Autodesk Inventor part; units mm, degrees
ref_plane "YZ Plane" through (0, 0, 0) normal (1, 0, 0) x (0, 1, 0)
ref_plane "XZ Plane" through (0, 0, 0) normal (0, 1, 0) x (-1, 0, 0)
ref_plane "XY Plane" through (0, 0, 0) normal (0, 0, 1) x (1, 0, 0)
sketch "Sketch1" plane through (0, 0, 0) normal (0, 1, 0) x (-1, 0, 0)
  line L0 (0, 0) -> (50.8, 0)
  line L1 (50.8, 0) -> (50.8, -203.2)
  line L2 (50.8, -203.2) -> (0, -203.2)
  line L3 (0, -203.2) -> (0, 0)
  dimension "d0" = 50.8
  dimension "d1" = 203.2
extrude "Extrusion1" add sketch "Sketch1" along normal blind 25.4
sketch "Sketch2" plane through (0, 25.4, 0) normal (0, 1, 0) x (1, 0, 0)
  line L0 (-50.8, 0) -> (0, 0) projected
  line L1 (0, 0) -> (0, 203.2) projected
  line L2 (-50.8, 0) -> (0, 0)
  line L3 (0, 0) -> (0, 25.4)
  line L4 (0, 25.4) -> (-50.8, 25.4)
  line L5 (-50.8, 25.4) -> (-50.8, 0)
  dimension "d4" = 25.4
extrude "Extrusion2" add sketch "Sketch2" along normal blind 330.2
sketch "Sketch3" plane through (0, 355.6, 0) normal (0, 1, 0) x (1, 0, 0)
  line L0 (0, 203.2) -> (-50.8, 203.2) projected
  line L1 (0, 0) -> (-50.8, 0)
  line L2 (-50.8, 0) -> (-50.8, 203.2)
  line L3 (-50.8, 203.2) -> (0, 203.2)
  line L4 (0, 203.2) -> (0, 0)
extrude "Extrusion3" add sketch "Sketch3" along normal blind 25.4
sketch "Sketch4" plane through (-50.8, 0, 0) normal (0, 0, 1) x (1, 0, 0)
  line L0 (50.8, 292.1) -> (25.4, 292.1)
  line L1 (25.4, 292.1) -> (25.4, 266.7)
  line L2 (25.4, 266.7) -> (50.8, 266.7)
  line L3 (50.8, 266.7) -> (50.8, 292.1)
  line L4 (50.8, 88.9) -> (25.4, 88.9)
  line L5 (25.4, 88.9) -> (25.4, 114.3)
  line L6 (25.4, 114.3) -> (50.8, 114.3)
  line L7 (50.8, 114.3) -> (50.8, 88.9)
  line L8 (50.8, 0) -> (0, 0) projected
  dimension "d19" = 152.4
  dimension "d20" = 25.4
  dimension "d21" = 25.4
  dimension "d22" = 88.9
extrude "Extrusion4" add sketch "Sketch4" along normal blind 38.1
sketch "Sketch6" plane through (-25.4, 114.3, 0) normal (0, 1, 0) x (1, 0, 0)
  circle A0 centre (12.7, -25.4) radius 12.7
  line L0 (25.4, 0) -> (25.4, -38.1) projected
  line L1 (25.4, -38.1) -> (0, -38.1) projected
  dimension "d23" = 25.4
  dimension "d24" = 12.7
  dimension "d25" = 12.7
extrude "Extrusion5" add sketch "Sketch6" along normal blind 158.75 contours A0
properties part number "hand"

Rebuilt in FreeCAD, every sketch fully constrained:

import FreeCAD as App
import Part
import Sketcher
from FreeCAD import Vector
Q = App.Units.Quantity

doc = App.newDocument("Part")
body = doc.addObject("PartDesign::Body", "Body")

sketch1 = body.newObject("Sketcher::SketchObject", "Sketch")
sketch1.AttachmentSupport = (doc.getObject("XZ_Plane"), [""])
sketch1.MapMode = "FlatFace"
sketch1.addGeometry(Part.LineSegment(Vector(-51, 0, 0), Vector(0, 0, 0)), False)
sketch1.addGeometry(Part.LineSegment(Vector(0, 0, 0), Vector(0, -203, 0)), False)
sketch1.addGeometry(Part.LineSegment(Vector(0, -203, 0), Vector(-51, -203, 0)), False)
sketch1.addGeometry(Part.LineSegment(Vector(-51, -203, 0), Vector(-51, 0, 0)), False)
sketch1.addConstraint(Sketcher.Constraint("Coincident", 0, 2, 1, 1))
sketch1.addConstraint(Sketcher.Constraint("Coincident", 1, 2, 2, 1))
sketch1.addConstraint(Sketcher.Constraint("Coincident", 2, 2, 3, 1))
sketch1.addConstraint(Sketcher.Constraint("Coincident", 3, 2, 0, 1))
sketch1.addConstraint(Sketcher.Constraint("Horizontal", 0))
sketch1.addConstraint(Sketcher.Constraint("Vertical", 1))
sketch1.addConstraint(Sketcher.Constraint("Horizontal", 2))
sketch1.addConstraint(Sketcher.Constraint("Vertical", 3))
sketch1.addConstraint(Sketcher.Constraint("Coincident", 0, 2, -1, 1))
sketch1.addConstraint(Sketcher.Constraint("DistanceX", 0, 1, 0, 2, Q("2 in")))
sketch1.addConstraint(Sketcher.Constraint("DistanceY", 1, 2, 1, 1, Q("8 in")))
pad1 = body.newObject("PartDesign::Pad", "Pad")
pad1.Profile = sketch1
pad1.Length = Q("1 in")
pad1.Reversed = True

sketch2 = body.newObject("Sketcher::SketchObject", "Sketch001")
sketch2.AttachmentSupport = (doc.getObject("XZ_Plane"), [""])
sketch2.MapMode = "FlatFace"
sketch2.AttachmentOffset = App.Placement(Vector(0, 0, -1 * 25.4), App.Rotation())
sketch2.addGeometry(Part.LineSegment(Vector(-51, -25, 0), Vector(-51, 0, 0)), False)
sketch2.addGeometry(Part.LineSegment(Vector(-51, 0, 0), Vector(0, 0, 0)), False)
sketch2.addGeometry(Part.LineSegment(Vector(0, 0, 0), Vector(0, -25, 0)), False)
sketch2.addGeometry(Part.LineSegment(Vector(0, -25, 0), Vector(-51, -25, 0)), False)
sketch2.addConstraint(Sketcher.Constraint("Coincident", 0, 2, 1, 1))
sketch2.addConstraint(Sketcher.Constraint("Coincident", 1, 2, 2, 1))
sketch2.addConstraint(Sketcher.Constraint("Coincident", 2, 2, 3, 1))
sketch2.addConstraint(Sketcher.Constraint("Coincident", 3, 2, 0, 1))
sketch2.addConstraint(Sketcher.Constraint("Vertical", 0))
sketch2.addConstraint(Sketcher.Constraint("Horizontal", 1))
sketch2.addConstraint(Sketcher.Constraint("Vertical", 2))
sketch2.addConstraint(Sketcher.Constraint("Horizontal", 3))
sketch2.addConstraint(Sketcher.Constraint("Coincident", 1, 2, -1, 1))
sketch2.addConstraint(Sketcher.Constraint("DistanceY", 0, 1, 0, 2, Q("1 in")))
sketch2.addConstraint(Sketcher.Constraint("DistanceX", 1, 1, 1, 2, Q("2 in")))
pad2 = body.newObject("PartDesign::Pad", "Pad001")
pad2.Profile = sketch2
pad2.Length = Q("13 in")
pad2.Reversed = True

sketch3 = body.newObject("Sketcher::SketchObject", "Sketch002")
sketch3.AttachmentSupport = (doc.getObject("XZ_Plane"), [""])
sketch3.MapMode = "FlatFace"
sketch3.AttachmentOffset = App.Placement(Vector(0, 0, -14 * 25.4), App.Rotation())
sketch3.addGeometry(Part.LineSegment(Vector(0, 0, 0), Vector(0, -203, 0)), False)
sketch3.addGeometry(Part.LineSegment(Vector(0, -203, 0), Vector(-51, -203, 0)), False)
sketch3.addGeometry(Part.LineSegment(Vector(-51, -203, 0), Vector(-51, 0, 0)), False)
sketch3.addGeometry(Part.LineSegment(Vector(-51, 0, 0), Vector(0, 0, 0)), False)
sketch3.addConstraint(Sketcher.Constraint("Coincident", 0, 2, 1, 1))
sketch3.addConstraint(Sketcher.Constraint("Coincident", 1, 2, 2, 1))
sketch3.addConstraint(Sketcher.Constraint("Coincident", 2, 2, 3, 1))
sketch3.addConstraint(Sketcher.Constraint("Coincident", 3, 2, 0, 1))
sketch3.addConstraint(Sketcher.Constraint("Vertical", 0))
sketch3.addConstraint(Sketcher.Constraint("Horizontal", 1))
sketch3.addConstraint(Sketcher.Constraint("Vertical", 2))
sketch3.addConstraint(Sketcher.Constraint("Horizontal", 3))
sketch3.addConstraint(Sketcher.Constraint("Coincident", 3, 2, -1, 1))
sketch3.addConstraint(Sketcher.Constraint("DistanceX", 1, 2, 1, 1, Q("2 in")))
sketch3.addConstraint(Sketcher.Constraint("DistanceY", 0, 2, 0, 1, Q("8 in")))
pad3 = body.newObject("PartDesign::Pad", "Pad002")
pad3.Profile = sketch3
pad3.Length = Q("1 in")
pad3.Reversed = True

sketch4 = body.newObject("Sketcher::SketchObject", "Sketch003")
sketch4.AttachmentSupport = (doc.getObject("XY_Plane"), [""])
sketch4.MapMode = "FlatFace"
sketch4.addGeometry(Part.LineSegment(Vector(0, 267, 0), Vector(0, 292, 0)), False)
sketch4.addGeometry(Part.LineSegment(Vector(0, 292, 0), Vector(-25, 292, 0)), False)
sketch4.addGeometry(Part.LineSegment(Vector(-25, 292, 0), Vector(-25, 267, 0)), False)
sketch4.addGeometry(Part.LineSegment(Vector(-25, 267, 0), Vector(0, 267, 0)), False)
sketch4.addGeometry(Part.LineSegment(Vector(-25, 89, 0), Vector(0, 89, 0)), False)
sketch4.addGeometry(Part.LineSegment(Vector(0, 89, 0), Vector(0, 114, 0)), False)
sketch4.addGeometry(Part.LineSegment(Vector(0, 114, 0), Vector(-25, 114, 0)), False)
sketch4.addGeometry(Part.LineSegment(Vector(-25, 114, 0), Vector(-25, 89, 0)), False)
sketch4.addConstraint(Sketcher.Constraint("Coincident", 0, 2, 1, 1))
sketch4.addConstraint(Sketcher.Constraint("Coincident", 1, 2, 2, 1))
sketch4.addConstraint(Sketcher.Constraint("Coincident", 2, 2, 3, 1))
sketch4.addConstraint(Sketcher.Constraint("Coincident", 3, 2, 0, 1))
sketch4.addConstraint(Sketcher.Constraint("Coincident", 4, 2, 5, 1))
sketch4.addConstraint(Sketcher.Constraint("Coincident", 5, 2, 6, 1))
sketch4.addConstraint(Sketcher.Constraint("Coincident", 6, 2, 7, 1))
sketch4.addConstraint(Sketcher.Constraint("Coincident", 7, 2, 4, 1))
sketch4.addConstraint(Sketcher.Constraint("Vertical", 0))
sketch4.addConstraint(Sketcher.Constraint("Horizontal", 1))
sketch4.addConstraint(Sketcher.Constraint("Vertical", 2))
sketch4.addConstraint(Sketcher.Constraint("Horizontal", 3))
sketch4.addConstraint(Sketcher.Constraint("Horizontal", 4))
sketch4.addConstraint(Sketcher.Constraint("Vertical", 5))
sketch4.addConstraint(Sketcher.Constraint("Horizontal", 6))
sketch4.addConstraint(Sketcher.Constraint("Vertical", 7))
sketch4.addConstraint(Sketcher.Constraint("PointOnObject", 0, 2, -2))
sketch4.addConstraint(Sketcher.Constraint("PointOnObject", 4, 2, -2))
sketch4.addConstraint(Sketcher.Constraint("Vertical", 2, 2, 6, 2))
sketch4.addConstraint(Sketcher.Constraint("Equal", 6, 0))
sketch4.addConstraint(Sketcher.Constraint("Equal", 2, 5))
sketch4.addConstraint(Sketcher.Constraint("DistanceX", 1, 2, 1, 1, Q("1 in")))
sketch4.addConstraint(Sketcher.Constraint("DistanceY", 5, 2, 3, 2, Q("6 in")))
sketch4.addConstraint(Sketcher.Constraint("DistanceY", -1, 1, 4, 2, Q("3.5 in")))
pad4 = body.newObject("PartDesign::Pad", "Pad003")
pad4.Profile = sketch4
pad4.Length = Q("1.5 in")

sketch5 = body.newObject("Sketcher::SketchObject", "Sketch004")
sketch5.AttachmentSupport = (doc.getObject("XZ_Plane"), [""])
sketch5.MapMode = "FlatFace"
sketch5.AttachmentOffset = App.Placement(Vector(0, 0, -4.5 * 25.4), App.Rotation())
sketch5.addGeometry(Part.Circle(Vector(-13, 25, 0), Vector(0, 0, 1), 13), False)
sketch5.addConstraint(Sketcher.Constraint("Diameter", 0, Q("1 in")))
sketch5.addConstraint(Sketcher.Constraint("DistanceY", -1, 1, 0, 3, Q("1 in")))
sketch5.addConstraint(Sketcher.Constraint("DistanceX", 0, 3, -1, 1, Q("0.5 in")))
pad5 = body.newObject("PartDesign::Pad", "Pad004")
pad5.Profile = sketch5
pad5.Length = Q("6.25 in")
pad5.Reversed = True

doc.recompute()
